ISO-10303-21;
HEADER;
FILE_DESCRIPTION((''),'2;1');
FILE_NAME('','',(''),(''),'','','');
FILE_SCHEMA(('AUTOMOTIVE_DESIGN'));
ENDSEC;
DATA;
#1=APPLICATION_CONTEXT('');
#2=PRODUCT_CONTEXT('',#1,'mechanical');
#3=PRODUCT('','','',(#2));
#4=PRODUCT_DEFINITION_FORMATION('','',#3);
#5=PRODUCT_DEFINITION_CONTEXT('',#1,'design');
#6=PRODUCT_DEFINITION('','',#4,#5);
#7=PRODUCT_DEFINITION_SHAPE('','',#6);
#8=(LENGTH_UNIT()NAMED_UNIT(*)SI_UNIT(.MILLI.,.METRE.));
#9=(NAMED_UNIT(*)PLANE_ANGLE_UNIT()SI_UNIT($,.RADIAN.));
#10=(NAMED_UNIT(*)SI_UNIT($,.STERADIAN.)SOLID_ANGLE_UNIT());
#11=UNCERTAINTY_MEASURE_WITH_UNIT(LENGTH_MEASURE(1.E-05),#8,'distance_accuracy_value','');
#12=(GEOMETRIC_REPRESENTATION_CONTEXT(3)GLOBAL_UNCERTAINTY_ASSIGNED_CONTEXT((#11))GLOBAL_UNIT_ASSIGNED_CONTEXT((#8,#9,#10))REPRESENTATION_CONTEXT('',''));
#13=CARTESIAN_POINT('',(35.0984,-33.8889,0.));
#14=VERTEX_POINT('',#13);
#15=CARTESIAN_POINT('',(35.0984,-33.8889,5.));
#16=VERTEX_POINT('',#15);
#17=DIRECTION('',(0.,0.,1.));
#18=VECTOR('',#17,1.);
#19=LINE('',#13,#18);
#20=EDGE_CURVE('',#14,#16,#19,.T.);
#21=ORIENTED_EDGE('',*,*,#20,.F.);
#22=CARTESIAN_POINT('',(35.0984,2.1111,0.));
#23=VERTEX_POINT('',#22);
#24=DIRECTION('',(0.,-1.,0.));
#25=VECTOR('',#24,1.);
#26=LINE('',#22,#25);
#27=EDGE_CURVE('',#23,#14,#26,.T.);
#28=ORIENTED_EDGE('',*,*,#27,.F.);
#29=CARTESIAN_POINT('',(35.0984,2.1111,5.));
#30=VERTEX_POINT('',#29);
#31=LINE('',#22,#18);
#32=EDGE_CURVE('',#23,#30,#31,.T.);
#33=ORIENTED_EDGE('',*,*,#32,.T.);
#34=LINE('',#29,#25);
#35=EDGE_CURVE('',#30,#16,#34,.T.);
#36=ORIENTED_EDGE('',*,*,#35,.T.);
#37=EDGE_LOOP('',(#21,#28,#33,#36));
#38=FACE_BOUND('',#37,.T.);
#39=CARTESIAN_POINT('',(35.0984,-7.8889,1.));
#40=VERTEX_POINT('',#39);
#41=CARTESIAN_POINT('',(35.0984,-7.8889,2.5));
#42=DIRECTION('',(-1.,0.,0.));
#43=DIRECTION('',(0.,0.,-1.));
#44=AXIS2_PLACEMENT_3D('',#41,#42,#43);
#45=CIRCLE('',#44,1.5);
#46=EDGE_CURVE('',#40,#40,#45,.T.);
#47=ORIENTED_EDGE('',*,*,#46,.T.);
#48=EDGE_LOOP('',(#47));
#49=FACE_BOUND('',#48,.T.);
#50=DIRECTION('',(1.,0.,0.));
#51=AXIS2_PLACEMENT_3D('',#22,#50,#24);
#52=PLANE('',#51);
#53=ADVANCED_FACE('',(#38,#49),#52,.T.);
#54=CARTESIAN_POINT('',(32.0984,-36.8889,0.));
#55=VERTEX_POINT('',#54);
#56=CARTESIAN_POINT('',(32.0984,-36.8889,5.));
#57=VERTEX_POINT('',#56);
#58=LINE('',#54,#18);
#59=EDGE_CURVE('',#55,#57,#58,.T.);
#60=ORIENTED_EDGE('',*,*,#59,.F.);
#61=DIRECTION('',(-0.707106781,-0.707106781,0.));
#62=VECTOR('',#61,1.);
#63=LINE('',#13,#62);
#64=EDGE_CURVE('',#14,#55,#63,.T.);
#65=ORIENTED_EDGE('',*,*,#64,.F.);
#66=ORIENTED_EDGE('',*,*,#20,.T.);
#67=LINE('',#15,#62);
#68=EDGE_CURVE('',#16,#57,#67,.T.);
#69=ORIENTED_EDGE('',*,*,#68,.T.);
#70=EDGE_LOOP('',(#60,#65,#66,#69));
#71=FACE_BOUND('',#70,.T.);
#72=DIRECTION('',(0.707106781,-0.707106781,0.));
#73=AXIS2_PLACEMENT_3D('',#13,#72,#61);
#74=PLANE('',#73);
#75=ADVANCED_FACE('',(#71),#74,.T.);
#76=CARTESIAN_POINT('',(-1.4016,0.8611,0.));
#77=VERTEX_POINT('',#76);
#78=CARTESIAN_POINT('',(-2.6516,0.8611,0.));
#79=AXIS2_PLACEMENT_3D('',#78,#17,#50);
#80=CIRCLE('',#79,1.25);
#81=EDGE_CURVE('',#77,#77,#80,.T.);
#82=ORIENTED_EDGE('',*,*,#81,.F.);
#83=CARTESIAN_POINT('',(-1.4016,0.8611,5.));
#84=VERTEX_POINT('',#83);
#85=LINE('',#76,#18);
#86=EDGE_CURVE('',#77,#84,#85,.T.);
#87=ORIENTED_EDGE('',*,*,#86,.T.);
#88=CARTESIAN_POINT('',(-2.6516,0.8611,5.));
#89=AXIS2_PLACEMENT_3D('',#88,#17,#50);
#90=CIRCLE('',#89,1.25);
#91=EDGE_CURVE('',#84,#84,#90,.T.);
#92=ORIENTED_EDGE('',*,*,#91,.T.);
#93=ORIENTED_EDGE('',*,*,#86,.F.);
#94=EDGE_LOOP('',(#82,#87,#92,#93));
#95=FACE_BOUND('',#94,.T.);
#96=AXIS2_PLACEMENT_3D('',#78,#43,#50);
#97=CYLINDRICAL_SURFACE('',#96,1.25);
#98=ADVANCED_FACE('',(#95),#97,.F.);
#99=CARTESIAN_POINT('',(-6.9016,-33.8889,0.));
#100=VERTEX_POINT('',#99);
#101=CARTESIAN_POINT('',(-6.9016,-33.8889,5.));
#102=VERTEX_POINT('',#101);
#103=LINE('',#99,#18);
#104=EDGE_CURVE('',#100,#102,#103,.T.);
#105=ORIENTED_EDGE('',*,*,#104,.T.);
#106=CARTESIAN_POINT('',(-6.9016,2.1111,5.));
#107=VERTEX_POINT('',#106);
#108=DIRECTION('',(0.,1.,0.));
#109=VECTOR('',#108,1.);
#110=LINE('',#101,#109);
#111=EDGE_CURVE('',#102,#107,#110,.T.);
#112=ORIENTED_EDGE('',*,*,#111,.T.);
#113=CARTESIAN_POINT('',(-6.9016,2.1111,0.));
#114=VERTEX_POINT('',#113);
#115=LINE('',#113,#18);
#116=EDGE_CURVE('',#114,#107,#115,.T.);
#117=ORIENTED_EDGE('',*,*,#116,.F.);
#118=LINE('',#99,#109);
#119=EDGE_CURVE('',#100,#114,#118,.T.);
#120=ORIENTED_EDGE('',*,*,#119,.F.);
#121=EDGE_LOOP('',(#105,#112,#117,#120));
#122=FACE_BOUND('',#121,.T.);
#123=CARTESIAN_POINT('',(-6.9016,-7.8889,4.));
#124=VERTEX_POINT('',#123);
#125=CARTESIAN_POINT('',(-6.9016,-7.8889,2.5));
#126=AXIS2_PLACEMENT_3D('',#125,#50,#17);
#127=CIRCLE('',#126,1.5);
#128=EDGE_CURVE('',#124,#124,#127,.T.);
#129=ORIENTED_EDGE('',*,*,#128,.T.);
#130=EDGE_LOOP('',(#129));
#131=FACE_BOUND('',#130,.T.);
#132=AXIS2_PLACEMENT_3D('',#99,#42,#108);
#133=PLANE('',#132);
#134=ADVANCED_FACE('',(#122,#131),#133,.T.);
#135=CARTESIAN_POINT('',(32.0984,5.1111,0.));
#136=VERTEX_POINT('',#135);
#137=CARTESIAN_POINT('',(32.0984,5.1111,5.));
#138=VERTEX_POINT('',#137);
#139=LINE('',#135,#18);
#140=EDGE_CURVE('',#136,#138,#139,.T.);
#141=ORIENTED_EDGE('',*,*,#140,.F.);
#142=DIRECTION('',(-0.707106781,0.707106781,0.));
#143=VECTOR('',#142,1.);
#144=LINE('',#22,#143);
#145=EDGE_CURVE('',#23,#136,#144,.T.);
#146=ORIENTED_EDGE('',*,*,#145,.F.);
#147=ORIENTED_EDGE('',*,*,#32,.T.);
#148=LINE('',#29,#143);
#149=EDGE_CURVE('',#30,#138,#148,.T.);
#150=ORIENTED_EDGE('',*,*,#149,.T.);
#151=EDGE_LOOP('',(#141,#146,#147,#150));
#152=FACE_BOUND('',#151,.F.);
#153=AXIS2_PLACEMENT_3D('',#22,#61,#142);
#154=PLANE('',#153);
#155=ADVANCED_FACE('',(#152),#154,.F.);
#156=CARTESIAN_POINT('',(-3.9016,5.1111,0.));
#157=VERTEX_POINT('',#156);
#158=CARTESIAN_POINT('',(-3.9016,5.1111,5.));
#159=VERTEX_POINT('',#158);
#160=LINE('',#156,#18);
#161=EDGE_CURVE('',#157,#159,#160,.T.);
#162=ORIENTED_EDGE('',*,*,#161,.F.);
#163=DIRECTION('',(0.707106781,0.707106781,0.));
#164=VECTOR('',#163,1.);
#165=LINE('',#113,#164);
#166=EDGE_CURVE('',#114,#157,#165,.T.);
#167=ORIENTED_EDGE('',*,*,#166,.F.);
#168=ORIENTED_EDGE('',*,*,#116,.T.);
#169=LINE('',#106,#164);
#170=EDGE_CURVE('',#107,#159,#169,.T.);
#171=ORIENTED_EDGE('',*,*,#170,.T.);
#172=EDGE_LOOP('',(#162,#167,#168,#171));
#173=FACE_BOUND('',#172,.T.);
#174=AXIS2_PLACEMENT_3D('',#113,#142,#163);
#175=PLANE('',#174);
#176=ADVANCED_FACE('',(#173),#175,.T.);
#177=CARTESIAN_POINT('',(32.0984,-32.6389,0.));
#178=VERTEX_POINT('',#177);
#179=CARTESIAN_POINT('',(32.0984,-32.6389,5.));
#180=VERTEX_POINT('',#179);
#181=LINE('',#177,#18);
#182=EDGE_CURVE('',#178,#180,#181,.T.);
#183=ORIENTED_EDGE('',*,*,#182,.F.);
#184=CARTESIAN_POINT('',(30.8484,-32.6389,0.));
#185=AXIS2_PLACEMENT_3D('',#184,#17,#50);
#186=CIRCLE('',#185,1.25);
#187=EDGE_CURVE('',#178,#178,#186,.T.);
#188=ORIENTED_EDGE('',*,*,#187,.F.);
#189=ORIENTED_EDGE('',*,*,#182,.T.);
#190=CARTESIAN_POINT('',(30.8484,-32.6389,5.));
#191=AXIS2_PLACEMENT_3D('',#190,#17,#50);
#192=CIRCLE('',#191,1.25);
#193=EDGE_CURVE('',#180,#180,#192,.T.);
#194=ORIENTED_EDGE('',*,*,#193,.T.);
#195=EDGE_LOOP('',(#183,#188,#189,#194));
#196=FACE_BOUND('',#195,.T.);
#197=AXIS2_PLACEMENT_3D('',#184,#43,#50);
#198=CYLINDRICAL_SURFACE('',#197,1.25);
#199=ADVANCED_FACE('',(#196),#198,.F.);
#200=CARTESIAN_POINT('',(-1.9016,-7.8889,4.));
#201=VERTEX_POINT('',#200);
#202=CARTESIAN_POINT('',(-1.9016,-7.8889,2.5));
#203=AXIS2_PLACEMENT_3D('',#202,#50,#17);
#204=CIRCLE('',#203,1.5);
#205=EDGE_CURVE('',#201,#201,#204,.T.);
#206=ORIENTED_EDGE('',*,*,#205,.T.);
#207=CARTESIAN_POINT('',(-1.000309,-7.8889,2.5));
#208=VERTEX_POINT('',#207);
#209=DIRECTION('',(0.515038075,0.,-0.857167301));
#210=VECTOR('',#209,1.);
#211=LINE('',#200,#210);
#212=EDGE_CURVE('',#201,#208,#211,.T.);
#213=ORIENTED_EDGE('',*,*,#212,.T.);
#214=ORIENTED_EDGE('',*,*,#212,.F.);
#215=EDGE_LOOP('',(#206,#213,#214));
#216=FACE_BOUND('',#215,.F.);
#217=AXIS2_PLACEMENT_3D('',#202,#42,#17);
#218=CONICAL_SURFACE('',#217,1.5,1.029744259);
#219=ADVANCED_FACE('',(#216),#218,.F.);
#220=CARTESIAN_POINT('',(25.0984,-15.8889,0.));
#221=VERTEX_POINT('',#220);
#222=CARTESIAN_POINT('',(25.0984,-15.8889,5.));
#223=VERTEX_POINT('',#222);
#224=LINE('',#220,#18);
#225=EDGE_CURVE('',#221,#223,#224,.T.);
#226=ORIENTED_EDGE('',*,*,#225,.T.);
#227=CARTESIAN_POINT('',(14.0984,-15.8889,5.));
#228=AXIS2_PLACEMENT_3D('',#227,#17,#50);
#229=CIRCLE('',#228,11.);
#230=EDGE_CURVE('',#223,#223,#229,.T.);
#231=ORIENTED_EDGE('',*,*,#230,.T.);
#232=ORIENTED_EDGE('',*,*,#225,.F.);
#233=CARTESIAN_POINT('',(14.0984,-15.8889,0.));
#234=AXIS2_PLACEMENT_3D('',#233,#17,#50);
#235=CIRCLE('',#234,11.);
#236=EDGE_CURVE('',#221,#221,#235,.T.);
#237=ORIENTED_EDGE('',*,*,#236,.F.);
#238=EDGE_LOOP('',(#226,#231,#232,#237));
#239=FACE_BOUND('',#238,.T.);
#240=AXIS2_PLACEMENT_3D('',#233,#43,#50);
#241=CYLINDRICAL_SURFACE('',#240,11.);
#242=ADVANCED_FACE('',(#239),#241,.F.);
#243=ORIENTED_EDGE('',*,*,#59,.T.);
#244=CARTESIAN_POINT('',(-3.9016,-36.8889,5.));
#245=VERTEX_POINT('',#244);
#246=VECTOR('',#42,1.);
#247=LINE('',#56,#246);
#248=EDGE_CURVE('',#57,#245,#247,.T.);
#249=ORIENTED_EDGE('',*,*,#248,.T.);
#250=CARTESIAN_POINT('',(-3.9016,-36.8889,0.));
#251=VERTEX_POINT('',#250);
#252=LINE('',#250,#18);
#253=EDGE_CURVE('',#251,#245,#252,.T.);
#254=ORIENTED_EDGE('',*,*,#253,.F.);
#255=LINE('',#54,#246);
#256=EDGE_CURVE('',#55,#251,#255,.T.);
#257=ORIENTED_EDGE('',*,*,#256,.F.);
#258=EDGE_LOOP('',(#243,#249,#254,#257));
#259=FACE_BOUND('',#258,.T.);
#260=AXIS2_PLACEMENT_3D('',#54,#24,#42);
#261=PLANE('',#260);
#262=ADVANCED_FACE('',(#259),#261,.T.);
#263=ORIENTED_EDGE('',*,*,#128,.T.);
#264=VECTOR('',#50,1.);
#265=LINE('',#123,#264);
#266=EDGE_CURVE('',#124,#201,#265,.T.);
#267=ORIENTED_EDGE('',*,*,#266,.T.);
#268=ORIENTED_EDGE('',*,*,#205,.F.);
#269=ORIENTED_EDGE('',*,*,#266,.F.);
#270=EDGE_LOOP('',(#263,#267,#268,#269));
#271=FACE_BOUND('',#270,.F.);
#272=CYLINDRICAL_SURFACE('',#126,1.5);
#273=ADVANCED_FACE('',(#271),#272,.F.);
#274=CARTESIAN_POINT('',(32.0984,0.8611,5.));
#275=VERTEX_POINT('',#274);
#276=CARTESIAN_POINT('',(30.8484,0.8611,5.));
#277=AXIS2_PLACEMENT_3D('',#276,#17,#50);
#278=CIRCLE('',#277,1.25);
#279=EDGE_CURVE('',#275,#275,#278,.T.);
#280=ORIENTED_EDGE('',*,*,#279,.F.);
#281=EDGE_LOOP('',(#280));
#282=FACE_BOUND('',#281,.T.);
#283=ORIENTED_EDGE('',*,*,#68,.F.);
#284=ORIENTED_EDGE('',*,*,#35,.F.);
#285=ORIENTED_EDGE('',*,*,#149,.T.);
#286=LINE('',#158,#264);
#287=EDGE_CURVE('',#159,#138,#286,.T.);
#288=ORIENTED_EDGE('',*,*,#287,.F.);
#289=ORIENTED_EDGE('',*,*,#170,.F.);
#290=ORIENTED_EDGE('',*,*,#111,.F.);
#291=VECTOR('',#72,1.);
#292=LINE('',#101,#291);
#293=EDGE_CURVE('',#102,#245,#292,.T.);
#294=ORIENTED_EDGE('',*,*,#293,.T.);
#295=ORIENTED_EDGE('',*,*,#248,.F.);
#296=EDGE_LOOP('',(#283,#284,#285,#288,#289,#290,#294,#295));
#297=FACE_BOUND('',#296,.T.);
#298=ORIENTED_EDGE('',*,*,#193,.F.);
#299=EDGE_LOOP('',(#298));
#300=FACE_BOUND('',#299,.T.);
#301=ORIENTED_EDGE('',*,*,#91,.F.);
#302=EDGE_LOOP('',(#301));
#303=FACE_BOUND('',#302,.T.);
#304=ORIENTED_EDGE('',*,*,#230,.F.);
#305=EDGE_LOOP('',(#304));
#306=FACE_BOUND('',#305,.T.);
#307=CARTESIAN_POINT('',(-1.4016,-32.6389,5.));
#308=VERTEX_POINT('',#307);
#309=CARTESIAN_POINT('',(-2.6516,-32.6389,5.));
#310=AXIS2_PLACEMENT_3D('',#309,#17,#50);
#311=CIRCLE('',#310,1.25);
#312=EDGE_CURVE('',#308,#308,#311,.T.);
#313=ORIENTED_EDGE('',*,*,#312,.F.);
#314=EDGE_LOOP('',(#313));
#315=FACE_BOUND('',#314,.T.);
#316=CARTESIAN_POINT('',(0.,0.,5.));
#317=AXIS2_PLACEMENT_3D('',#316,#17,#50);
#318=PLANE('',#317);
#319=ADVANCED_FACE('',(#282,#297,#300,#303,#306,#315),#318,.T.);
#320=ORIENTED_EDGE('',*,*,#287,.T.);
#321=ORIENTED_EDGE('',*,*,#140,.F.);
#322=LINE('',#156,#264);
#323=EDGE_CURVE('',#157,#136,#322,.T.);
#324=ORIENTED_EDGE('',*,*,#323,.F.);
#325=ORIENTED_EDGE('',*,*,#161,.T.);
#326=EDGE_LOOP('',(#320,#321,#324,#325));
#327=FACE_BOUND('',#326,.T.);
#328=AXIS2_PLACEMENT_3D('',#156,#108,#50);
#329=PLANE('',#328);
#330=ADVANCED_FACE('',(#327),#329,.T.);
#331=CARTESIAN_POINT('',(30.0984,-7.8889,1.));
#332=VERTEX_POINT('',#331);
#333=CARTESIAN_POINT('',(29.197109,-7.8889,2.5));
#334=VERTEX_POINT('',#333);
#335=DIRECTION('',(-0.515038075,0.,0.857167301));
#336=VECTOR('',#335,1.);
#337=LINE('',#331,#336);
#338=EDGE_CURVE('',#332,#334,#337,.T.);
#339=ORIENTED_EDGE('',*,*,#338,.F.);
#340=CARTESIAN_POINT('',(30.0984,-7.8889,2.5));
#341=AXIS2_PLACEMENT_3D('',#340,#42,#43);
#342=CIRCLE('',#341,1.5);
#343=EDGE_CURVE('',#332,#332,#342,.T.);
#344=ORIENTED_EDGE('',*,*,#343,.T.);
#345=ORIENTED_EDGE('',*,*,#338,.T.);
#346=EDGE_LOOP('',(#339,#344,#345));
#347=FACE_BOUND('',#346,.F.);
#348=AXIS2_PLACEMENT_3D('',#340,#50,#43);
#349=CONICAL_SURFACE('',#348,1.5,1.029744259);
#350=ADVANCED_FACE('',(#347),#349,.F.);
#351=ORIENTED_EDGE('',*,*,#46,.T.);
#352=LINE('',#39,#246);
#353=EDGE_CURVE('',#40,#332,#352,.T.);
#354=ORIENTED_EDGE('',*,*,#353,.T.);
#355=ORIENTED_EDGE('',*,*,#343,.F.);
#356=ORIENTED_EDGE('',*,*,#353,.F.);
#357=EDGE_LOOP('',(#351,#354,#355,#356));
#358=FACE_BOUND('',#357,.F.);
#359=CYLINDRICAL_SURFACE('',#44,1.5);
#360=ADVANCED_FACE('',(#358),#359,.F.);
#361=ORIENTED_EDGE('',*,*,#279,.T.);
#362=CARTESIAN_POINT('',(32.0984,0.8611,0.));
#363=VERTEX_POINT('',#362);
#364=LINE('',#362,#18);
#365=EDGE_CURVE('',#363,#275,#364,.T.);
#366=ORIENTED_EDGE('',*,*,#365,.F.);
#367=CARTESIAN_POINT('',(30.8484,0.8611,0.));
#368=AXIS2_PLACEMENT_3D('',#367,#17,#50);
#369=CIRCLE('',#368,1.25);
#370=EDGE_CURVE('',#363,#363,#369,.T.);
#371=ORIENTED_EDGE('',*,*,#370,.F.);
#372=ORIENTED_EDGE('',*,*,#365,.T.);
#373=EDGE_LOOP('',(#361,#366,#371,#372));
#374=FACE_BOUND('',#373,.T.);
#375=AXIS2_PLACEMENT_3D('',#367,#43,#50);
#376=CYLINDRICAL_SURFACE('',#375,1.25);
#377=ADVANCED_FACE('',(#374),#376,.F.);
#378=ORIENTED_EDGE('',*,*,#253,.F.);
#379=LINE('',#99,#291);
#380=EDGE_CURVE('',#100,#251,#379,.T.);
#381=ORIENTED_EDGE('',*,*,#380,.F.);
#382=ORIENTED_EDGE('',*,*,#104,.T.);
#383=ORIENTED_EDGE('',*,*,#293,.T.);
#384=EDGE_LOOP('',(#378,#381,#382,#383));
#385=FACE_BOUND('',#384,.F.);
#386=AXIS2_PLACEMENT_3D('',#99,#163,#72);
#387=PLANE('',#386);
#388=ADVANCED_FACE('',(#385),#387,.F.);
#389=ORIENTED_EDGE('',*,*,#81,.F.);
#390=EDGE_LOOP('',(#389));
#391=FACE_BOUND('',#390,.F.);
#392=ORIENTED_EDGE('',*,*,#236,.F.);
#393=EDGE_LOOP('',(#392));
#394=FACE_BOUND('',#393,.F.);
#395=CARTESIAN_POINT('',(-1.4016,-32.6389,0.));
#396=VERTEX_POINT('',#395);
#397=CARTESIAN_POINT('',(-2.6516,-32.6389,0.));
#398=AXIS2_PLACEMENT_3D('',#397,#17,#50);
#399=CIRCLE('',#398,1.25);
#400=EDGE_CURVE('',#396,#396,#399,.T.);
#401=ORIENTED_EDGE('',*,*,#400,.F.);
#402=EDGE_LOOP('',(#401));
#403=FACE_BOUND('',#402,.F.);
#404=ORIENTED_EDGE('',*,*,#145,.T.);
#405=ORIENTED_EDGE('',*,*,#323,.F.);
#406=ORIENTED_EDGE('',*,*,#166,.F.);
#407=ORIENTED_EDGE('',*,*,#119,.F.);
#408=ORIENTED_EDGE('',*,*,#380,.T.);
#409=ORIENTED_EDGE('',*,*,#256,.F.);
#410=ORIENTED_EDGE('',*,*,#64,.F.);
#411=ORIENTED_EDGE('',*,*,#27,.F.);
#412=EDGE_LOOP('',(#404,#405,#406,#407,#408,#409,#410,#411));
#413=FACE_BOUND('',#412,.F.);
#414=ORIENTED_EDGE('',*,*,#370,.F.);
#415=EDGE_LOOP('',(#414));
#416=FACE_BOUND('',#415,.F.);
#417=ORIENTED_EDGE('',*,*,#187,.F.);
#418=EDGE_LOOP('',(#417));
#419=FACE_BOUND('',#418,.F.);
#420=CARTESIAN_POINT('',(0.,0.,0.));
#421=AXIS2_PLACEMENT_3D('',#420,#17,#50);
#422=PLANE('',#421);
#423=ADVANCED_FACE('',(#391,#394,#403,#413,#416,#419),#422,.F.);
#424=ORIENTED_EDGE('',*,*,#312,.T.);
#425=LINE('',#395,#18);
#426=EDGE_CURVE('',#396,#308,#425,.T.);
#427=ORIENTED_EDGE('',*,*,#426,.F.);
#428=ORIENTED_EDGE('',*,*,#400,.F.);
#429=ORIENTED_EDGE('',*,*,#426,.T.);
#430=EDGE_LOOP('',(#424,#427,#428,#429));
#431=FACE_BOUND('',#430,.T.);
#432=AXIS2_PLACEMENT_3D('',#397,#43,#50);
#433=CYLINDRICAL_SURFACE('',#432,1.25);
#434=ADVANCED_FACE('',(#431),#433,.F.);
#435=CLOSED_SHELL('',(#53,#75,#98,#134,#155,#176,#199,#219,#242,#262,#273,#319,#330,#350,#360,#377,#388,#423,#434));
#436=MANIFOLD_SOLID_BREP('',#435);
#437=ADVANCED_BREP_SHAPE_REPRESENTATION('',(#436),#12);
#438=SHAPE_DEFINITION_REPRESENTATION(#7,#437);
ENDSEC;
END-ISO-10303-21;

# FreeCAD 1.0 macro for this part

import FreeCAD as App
import Part
import Sketcher

V = App.Vector

doc = App.newDocument("Part")
body = doc.addObject("PartDesign::Body", "Body")

# Sketch on XY plane
sketch1 = doc.addObject("Sketcher::SketchObject", "Sketch")
body.addObject(sketch1)
sketch1.AttachmentSupport = (doc.XY_Plane, [""])
sketch1.MapMode = "FlatFace"
sketch1.addGeometry(Part.LineSegment(V(32.1, 5.1, 0), V(-3.9, 5.1, 0)), False)
sketch1.addGeometry(Part.LineSegment(V(-3.9, 5.1, 0), V(-6.9, 2.1, 0)), False)
sketch1.addGeometry(Part.LineSegment(V(-6.9, 2.1, 0), V(-6.9, -33.9, 0)), False)
sketch1.addGeometry(Part.LineSegment(V(-6.9, -33.9, 0), V(-3.9, -36.9, 0)), False)
sketch1.addGeometry(Part.LineSegment(V(-3.9, -36.9, 0), V(32.1, -36.9, 0)), False)
sketch1.addGeometry(Part.LineSegment(V(32.1, -36.9, 0), V(35.1, -33.9, 0)), False)
sketch1.addGeometry(Part.LineSegment(V(35.1, -33.9, 0), V(35.1, 2.1, 0)), False)
sketch1.addGeometry(Part.LineSegment(V(35.1, 2.1, 0), V(32.1, 5.1, 0)), False)
sketch1.addGeometry(Part.Circle(V(-2.7, -32.6, 0), V(0, 0, 1), 1.2), False)
sketch1.addGeometry(Part.Circle(V(30.8, -32.6, 0), V(0, 0, 1), 1.2), False)
sketch1.addGeometry(Part.Circle(V(-2.7, 0.9, 0), V(0, 0, 1), 1.2), False)
sketch1.addGeometry(Part.Circle(V(14.1, -15.9, 0), V(0, 0, 1), 11), False)
sketch1.addGeometry(Part.Circle(V(30.8, 0.9, 0), V(0, 0, 1), 1.2), False)
sketch1.addConstraint(Sketcher.Constraint("Coincident", 0, 2, 1, 1))
sketch1.addConstraint(Sketcher.Constraint("Coincident", 1, 2, 2, 1))
sketch1.addConstraint(Sketcher.Constraint("Coincident", 2, 2, 3, 1))
sketch1.addConstraint(Sketcher.Constraint("Coincident", 3, 2, 4, 1))
sketch1.addConstraint(Sketcher.Constraint("Coincident", 4, 2, 5, 1))
sketch1.addConstraint(Sketcher.Constraint("Coincident", 5, 2, 6, 1))
sketch1.addConstraint(Sketcher.Constraint("Coincident", 6, 2, 7, 1))
sketch1.addConstraint(Sketcher.Constraint("Coincident", 7, 2, 0, 1))
sketch1.addConstraint(Sketcher.Constraint("Horizontal", 0))
sketch1.addConstraint(Sketcher.Constraint("Vertical", 2))
sketch1.addConstraint(Sketcher.Constraint("Horizontal", 4))
sketch1.addConstraint(Sketcher.Constraint("Vertical", 6))
sketch1.addConstraint(Sketcher.Constraint("Equal", 8, 9))
sketch1.addConstraint(Sketcher.Constraint("Equal", 9, 10))
sketch1.addConstraint(Sketcher.Constraint("Equal", 10, 12))
sketch1.addConstraint(Sketcher.Constraint("Perpendicular", 1, 3))
sketch1.addConstraint(Sketcher.Constraint("Perpendicular", 3, 5))
sketch1.addConstraint(Sketcher.Constraint("Perpendicular", 5, 7))
sketch1.addConstraint(Sketcher.Constraint("Horizontal", 8, 3, 9, 3))
sketch1.addConstraint(Sketcher.Constraint("Horizontal", 10, 3, 12, 3))
sketch1.addConstraint(Sketcher.Constraint("Horizontal", 2, 2, 5, 2))
sketch1.addConstraint(Sketcher.Constraint("Horizontal", 1, 2, 6, 2))
sketch1.addConstraint(Sketcher.Constraint("Vertical", 8, 3, 10, 3))
sketch1.addConstraint(Sketcher.Constraint("Vertical", 9, 3, 12, 3))
sketch1.addConstraint(Sketcher.Constraint("Vertical", 0, 2, 3, 2))
sketch1.addConstraint(Sketcher.Constraint("Vertical", 4, 2, 7, 2))
sketch1.addConstraint(Sketcher.Constraint("Equal", 4, 2))
sketch1.addConstraint(Sketcher.Constraint("Diameter", 11, 22.0))
sketch1.addConstraint(Sketcher.Constraint("Diameter", 8, 2.5))
sketch1.addConstraint(Sketcher.Constraint("DistanceX", 0, 2, 0, 1, 36.0))
sketch1.addConstraint(Sketcher.Constraint("DistanceX", 0, 2, 11, 3, 18.0))
sketch1.addConstraint(Sketcher.Constraint("DistanceY", 11, 3, 0, 2, 21.0))
sketch1.addConstraint(Sketcher.Constraint("DistanceX", 1, 2, 0, 2, 3.0))
sketch1.addConstraint(Sketcher.Constraint("DistanceX", 8, 3, 9, 3, 33.5))
sketch1.addConstraint(Sketcher.Constraint("DistanceY", 8, 3, 10, 3, 33.5))
sketch1.addConstraint(Sketcher.Constraint("DistanceX", 8, 3, 11, 3, 16.75))
sketch1.addConstraint(Sketcher.Constraint("DistanceY", 8, 3, 11, 3, 16.75))
sketch1.addConstraint(Sketcher.Constraint("DistanceY", 8, 3, -1, 1, 32.639))
sketch1.addConstraint(Sketcher.Constraint("DistanceX", 8, 3, -1, 1, 2.6516))
pad1 = doc.addObject("PartDesign::Pad", "Pad")
body.addObject(pad1)
pad1.Profile = sketch1
pad1.Length = 5

# Sketch on YZ plane
sketch2 = doc.addObject("Sketcher::SketchObject", "Sketch001")
body.addObject(sketch2)
sketch2.AttachmentSupport = (doc.YZ_Plane, [""])
sketch2.MapMode = "FlatFace"
sketch2.AttachmentOffset = App.Placement(V(0, 0, 35.0984), App.Rotation())
sketch2.addGeometry(Part.Circle(V(-7.9, 2.5, 0), V(0, 0, 1), 1.5), False)
sketch2.addConstraint(Sketcher.Constraint("Diameter", 0, 3.0))
sketch2.addConstraint(Sketcher.Constraint("DistanceY", -1, 1, 0, 3, 2.5))
sketch2.addConstraint(Sketcher.Constraint("DistanceX", 0, 3, -1, 1, 7.889))
doc.recompute()
hole = doc.addObject("PartDesign::Hole", "Hole")
body.addObject(hole)
hole.Profile = sketch2
hole.ThreadType = "None"
hole.Diameter = 3
hole.DepthType = "Dimension"
hole.Depth = 5
hole.DrillPoint = "Angled"
hole.DrillPointAngle = 118

# Sketch on YZ plane
sketch3 = doc.addObject("Sketcher::SketchObject", "Sketch002")
body.addObject(sketch3)
sketch3.AttachmentSupport = (doc.YZ_Plane, [""])
sketch3.MapMode = "FlatFace"
sketch3.AttachmentOffset = App.Placement(V(0, 0, -6.9016), App.Rotation())
sketch3.addGeometry(Part.Circle(V(-7.9, 2.5, 0), V(0, 0, 1), 1.5), False)
sketch3.addConstraint(Sketcher.Constraint("Diameter", 0, 3.0))
sketch3.addConstraint(Sketcher.Constraint("DistanceY", -1, 1, 0, 3, 2.5))
sketch3.addConstraint(Sketcher.Constraint("DistanceX", 0, 3, -1, 1, 7.889))
doc.recompute()
hole2 = doc.addObject("PartDesign::Hole", "Hole001")
body.addObject(hole2)
hole2.Profile = sketch3
hole2.ThreadType = "None"
hole2.Diameter = 3
hole2.DepthType = "Dimension"
hole2.Depth = 5
hole2.DrillPoint = "Angled"
hole2.DrillPointAngle = 118
hole2.Reversed = True

doc.recompute()
